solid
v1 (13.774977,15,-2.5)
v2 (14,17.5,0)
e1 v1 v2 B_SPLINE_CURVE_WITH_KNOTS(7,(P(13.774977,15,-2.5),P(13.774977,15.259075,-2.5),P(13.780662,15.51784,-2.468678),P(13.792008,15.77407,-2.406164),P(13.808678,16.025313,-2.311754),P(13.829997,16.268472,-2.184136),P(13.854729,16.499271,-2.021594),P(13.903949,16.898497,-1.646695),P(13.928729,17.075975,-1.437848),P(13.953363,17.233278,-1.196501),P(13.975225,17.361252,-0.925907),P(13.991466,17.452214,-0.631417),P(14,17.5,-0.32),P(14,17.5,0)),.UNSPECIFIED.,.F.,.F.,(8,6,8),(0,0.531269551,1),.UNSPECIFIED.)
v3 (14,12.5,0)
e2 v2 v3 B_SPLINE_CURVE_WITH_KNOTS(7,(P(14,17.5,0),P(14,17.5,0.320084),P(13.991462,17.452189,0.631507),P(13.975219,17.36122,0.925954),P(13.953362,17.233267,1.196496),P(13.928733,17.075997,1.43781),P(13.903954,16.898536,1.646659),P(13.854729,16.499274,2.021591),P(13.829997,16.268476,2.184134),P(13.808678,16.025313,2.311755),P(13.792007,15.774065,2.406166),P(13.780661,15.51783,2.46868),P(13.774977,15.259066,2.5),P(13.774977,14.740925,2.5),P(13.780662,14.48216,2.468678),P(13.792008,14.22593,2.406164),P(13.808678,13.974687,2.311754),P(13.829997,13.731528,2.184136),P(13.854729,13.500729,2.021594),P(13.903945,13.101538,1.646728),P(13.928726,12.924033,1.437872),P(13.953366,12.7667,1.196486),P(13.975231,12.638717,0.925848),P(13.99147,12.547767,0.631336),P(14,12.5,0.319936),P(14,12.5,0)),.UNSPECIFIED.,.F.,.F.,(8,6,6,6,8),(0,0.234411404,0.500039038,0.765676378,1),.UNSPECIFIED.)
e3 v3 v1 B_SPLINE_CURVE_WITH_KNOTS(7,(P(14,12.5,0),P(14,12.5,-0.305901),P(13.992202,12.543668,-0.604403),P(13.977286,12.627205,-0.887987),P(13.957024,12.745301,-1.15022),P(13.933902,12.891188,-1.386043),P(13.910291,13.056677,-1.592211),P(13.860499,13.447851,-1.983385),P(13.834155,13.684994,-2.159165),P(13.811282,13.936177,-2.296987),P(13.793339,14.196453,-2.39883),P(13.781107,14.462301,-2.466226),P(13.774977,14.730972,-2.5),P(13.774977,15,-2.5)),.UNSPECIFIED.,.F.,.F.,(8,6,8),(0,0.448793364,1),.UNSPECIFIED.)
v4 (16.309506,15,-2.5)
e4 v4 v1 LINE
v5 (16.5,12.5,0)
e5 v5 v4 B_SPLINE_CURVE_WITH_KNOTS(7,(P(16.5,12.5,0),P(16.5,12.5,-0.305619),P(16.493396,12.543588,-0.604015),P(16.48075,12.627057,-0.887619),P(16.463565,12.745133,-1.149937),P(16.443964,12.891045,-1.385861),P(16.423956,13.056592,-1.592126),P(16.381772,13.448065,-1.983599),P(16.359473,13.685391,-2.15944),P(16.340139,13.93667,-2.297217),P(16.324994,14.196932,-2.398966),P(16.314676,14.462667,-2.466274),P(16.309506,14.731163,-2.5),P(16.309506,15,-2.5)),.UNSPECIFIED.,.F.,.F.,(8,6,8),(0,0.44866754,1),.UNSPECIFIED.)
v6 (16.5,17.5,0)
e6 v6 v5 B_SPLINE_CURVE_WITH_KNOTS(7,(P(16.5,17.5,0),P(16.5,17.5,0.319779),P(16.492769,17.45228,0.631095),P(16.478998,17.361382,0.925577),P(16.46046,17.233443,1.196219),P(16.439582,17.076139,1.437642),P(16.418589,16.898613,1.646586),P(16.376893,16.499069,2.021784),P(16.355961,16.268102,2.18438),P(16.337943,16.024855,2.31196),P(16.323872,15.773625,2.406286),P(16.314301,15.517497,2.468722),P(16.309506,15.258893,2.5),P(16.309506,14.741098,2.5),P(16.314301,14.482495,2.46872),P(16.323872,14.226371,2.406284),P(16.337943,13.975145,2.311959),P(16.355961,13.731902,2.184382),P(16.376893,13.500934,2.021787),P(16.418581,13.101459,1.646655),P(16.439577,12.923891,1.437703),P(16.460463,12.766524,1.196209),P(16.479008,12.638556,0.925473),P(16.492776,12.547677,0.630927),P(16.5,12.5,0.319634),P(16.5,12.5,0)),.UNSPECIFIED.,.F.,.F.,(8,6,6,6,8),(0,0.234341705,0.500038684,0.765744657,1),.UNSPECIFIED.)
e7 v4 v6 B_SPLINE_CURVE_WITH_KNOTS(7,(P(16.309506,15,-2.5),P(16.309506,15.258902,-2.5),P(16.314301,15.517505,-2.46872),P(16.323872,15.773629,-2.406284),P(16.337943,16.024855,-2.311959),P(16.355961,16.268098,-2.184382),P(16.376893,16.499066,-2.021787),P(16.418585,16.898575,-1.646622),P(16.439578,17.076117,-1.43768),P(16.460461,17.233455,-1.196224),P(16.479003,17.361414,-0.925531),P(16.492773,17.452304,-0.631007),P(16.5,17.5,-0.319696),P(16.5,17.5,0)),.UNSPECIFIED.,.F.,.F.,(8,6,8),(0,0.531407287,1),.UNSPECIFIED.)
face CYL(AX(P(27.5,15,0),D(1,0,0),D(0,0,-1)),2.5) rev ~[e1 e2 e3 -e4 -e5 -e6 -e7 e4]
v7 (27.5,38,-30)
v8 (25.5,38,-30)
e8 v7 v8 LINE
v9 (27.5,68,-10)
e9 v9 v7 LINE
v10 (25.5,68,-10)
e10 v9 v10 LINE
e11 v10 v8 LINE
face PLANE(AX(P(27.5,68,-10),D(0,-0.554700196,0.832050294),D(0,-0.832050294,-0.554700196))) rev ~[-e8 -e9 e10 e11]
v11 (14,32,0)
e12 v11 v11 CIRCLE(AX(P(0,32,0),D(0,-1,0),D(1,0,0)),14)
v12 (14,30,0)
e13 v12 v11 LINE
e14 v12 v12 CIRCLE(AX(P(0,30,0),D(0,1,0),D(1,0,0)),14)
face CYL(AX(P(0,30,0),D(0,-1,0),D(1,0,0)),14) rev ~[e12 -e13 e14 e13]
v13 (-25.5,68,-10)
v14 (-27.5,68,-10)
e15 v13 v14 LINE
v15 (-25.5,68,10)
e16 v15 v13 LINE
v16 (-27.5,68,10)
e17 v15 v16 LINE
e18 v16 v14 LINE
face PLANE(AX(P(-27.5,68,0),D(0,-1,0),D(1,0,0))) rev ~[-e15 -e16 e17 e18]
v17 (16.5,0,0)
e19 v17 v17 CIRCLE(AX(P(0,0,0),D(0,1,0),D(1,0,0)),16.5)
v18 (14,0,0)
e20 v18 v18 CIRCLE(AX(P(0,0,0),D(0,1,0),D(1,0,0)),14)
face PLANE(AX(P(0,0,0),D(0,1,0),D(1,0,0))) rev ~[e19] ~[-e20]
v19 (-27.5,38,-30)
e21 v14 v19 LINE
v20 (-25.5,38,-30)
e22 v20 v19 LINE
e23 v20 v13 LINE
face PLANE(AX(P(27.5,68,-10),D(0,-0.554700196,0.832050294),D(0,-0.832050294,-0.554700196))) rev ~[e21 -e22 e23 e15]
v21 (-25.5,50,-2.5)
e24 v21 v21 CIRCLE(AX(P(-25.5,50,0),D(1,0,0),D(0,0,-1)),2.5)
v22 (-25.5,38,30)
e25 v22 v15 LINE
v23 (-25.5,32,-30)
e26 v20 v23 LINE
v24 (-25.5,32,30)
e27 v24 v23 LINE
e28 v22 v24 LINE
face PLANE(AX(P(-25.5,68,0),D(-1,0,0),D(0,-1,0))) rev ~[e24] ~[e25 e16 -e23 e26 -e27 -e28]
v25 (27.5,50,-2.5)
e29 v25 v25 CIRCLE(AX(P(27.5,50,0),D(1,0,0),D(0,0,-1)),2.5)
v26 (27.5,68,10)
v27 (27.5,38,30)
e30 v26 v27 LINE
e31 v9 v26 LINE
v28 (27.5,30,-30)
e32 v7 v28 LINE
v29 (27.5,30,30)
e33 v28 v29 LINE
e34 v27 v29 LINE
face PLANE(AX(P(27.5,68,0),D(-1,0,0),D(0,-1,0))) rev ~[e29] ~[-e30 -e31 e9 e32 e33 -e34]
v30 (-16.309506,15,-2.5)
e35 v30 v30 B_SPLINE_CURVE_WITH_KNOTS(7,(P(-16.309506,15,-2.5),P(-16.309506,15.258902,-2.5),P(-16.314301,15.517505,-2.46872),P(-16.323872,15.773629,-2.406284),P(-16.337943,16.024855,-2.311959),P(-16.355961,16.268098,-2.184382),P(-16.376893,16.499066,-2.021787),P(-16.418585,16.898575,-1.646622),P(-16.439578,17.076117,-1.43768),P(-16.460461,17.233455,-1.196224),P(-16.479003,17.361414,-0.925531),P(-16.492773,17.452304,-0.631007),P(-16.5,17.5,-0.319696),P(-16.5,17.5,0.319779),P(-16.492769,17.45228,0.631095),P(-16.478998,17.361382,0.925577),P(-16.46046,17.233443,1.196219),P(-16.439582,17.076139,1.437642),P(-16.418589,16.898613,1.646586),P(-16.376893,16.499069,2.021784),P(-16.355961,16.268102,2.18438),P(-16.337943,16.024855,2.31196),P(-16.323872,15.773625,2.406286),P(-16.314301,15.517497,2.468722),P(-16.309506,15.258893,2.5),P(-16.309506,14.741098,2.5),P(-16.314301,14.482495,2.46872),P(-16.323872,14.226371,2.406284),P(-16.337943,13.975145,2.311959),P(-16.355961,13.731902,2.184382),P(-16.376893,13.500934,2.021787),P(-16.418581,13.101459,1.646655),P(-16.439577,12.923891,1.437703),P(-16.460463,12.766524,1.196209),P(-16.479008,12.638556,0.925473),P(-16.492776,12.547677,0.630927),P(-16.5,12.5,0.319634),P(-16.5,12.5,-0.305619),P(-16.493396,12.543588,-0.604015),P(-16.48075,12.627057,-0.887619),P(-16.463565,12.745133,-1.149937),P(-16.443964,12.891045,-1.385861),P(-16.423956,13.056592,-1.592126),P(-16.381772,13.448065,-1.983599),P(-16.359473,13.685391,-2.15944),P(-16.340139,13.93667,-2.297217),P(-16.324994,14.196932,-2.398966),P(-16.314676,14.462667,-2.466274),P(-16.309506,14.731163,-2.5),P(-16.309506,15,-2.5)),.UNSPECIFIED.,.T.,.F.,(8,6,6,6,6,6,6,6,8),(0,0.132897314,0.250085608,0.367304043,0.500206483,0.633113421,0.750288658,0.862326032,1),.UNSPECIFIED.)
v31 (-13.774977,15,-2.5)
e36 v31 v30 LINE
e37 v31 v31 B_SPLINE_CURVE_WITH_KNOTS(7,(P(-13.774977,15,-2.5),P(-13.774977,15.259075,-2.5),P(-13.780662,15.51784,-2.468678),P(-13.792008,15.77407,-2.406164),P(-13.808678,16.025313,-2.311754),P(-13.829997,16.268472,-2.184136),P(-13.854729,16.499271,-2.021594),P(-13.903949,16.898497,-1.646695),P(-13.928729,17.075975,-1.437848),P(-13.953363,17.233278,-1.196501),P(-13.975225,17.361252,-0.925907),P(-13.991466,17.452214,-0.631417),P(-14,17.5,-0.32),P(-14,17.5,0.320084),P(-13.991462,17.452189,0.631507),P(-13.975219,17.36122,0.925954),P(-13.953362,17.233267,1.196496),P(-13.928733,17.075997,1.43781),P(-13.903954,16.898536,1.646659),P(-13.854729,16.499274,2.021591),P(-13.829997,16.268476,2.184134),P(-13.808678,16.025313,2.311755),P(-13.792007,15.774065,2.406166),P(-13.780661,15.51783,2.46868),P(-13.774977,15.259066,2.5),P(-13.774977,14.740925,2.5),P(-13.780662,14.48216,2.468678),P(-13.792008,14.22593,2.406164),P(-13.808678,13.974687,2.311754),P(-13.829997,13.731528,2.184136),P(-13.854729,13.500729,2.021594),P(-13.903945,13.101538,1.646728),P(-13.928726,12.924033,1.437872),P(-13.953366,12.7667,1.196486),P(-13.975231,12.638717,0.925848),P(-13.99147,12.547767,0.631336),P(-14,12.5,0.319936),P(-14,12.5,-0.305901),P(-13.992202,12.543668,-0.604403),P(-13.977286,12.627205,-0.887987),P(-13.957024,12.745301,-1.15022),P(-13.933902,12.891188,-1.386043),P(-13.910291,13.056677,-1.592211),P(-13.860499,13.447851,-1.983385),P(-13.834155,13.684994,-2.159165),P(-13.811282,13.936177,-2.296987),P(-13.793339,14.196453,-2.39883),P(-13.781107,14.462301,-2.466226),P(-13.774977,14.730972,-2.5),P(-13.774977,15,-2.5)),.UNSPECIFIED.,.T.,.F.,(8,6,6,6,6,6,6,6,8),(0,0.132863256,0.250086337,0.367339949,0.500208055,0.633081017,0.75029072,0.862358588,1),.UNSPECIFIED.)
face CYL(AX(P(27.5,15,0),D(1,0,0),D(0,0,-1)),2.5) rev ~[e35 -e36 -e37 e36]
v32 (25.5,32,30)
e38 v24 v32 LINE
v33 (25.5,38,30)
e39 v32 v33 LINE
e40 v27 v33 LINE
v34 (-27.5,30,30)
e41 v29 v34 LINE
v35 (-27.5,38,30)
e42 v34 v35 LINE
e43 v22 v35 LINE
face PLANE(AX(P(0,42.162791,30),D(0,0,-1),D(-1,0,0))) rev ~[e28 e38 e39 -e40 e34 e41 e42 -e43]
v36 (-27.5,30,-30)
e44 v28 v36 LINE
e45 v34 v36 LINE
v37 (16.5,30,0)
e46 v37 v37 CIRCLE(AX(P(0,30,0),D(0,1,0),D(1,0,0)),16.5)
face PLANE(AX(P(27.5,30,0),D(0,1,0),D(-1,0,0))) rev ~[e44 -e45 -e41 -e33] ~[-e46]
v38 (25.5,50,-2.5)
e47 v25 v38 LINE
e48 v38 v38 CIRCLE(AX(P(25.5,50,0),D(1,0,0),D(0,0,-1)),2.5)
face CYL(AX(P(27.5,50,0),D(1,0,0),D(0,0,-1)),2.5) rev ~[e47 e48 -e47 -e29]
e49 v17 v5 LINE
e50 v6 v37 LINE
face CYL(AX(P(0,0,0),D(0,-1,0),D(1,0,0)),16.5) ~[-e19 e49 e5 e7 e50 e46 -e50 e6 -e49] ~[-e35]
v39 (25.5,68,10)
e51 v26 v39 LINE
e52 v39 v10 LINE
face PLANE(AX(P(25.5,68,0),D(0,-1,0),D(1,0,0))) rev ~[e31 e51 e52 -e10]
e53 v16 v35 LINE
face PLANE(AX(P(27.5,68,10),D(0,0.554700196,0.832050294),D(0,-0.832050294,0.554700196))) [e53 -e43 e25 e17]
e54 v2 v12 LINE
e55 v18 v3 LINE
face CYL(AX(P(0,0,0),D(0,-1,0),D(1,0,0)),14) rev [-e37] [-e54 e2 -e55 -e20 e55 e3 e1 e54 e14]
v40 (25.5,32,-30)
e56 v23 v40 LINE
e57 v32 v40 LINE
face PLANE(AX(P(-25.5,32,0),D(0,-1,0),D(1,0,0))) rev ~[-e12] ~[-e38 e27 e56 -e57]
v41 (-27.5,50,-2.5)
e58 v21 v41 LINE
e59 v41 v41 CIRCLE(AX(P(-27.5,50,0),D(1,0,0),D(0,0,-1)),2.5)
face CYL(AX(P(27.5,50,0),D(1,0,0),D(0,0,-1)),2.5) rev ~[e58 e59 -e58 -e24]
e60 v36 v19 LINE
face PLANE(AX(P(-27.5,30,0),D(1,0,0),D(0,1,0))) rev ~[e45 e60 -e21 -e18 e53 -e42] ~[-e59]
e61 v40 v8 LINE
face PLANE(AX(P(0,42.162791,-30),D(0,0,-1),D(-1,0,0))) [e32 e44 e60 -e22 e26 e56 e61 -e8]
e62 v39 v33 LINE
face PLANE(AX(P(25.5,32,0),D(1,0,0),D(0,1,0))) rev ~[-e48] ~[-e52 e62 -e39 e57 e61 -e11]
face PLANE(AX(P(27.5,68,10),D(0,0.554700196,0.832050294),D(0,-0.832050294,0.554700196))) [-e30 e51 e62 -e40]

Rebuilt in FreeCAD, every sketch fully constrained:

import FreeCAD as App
import Part
import Sketcher

doc = App.newDocument("Part")
body = doc.addObject("PartDesign::Body", "Body")

# Sketch on XZ plane
sketch1 = body.newObject("Sketcher::SketchObject", "Sketch")
sketch1.AttachmentSupport = (doc.getObject("XZ_Plane"), [""])
sketch1.MapMode = "FlatFace"
sketch1.addGeometry([
    Part.Circle(App.Vector(0, 0, 0), App.Vector(0, 0, 1), 16),
    Part.Circle(App.Vector(0, 0, 0), App.Vector(0, 0, 1), 14),
], False)
sketch1.addConstraint([
    Sketcher.Constraint("Coincident", 0, 3, -1, 1),
    Sketcher.Constraint("Coincident", 1, 3, -1, 1),
    Sketcher.Constraint("Diameter", 0, 33.0),
    Sketcher.Constraint("Diameter", 1, 28.0),
])
pad1 = body.newObject("PartDesign::Pad", "Pad")
pad1.Profile = sketch1
pad1.Length = 30
pad1.Reversed = True

# Sketch on XY plane
sketch2 = body.newObject("Sketcher::SketchObject", "Sketch001")
sketch2.AttachmentSupport = (doc.getObject("XY_Plane"), [""])
sketch2.MapMode = "FlatFace"
sketch2.addGeometry([
    Part.LineSegment(App.Vector(-27.5, 30, 0), App.Vector(27.5, 30, 0)),  # 0
    Part.LineSegment(App.Vector(27.5, 30, 0), App.Vector(27.5, 68, 0)),  # 1
    Part.LineSegment(App.Vector(27.5, 68, 0), App.Vector(25.5, 68, 0)),  # 2
    Part.LineSegment(App.Vector(25.5, 68, 0), App.Vector(25.5, 32, 0)),  # 3
    Part.LineSegment(App.Vector(25.5, 32, 0), App.Vector(-25.5, 32, 0)),  # 4
    Part.LineSegment(App.Vector(-25.5, 32, 0), App.Vector(-25.5, 68, 0)),  # 5
    Part.LineSegment(App.Vector(-25.5, 68, 0), App.Vector(-27.5, 68, 0)),  # 6
    Part.LineSegment(App.Vector(-27.5, 68, 0), App.Vector(-27.5, 30, 0)),  # 7
], False)
sketch2.addConstraint([
    Sketcher.Constraint("Coincident", 0, 2, 1, 1),
    Sketcher.Constraint("Coincident", 1, 2, 2, 1),
    Sketcher.Constraint("Coincident", 2, 2, 3, 1),
    Sketcher.Constraint("Coincident", 3, 2, 4, 1),
    Sketcher.Constraint("Coincident", 4, 2, 5, 1),
    Sketcher.Constraint("Coincident", 5, 2, 6, 1),
    Sketcher.Constraint("Coincident", 6, 2, 7, 1),
    Sketcher.Constraint("Coincident", 7, 2, 0, 1),
    Sketcher.Constraint("Horizontal", 0),
    Sketcher.Constraint("Vertical", 1),
    Sketcher.Constraint("Horizontal", 2),
    Sketcher.Constraint("Vertical", 3),
    Sketcher.Constraint("Horizontal", 4),
    Sketcher.Constraint("Vertical", 5),
    Sketcher.Constraint("Horizontal", 6),
    Sketcher.Constraint("Vertical", 7),
    Sketcher.Constraint("Symmetric", 2, 2, 5, 2, -2),
    Sketcher.Constraint("Equal", 2, 6),
    Sketcher.Constraint("DistanceX", 0, 1, 0, 2, 55.0),
    Sketcher.Constraint("DistanceX", 2, 2, 2, 1, 2.0),
    Sketcher.Constraint("DistanceY", 1, 1, 1, 2, 38.0),
    Sketcher.Constraint("DistanceY", 3, 2, 3, 1, 36.0),
    Sketcher.Constraint("DistanceY", -1, 1, 0, 2, 30.0),
])
pad2 = body.newObject("PartDesign::Pad", "Pad001")
pad2.Profile = sketch2
pad2.Type = "TwoLengths"
pad2.Length = 30
pad2.Length2 = 30

# Sketch on XZ plane
sketch3 = body.newObject("Sketcher::SketchObject", "Sketch002")
sketch3.AttachmentSupport = (doc.getObject("XZ_Plane"), [""])
sketch3.MapMode = "FlatFace"
sketch3.AttachmentOffset = App.Placement(App.Vector(0, 0, -30), App.Rotation())
sketch3.addGeometry(Part.Circle(App.Vector(0, 0, 0), App.Vector(0, 0, 1), 14), False)
sketch3.addConstraint([
    Sketcher.Constraint("Coincident", 0, 3, -1, 1),
    Sketcher.Constraint("Diameter", 0, 28.0),
])
pocket1 = body.newObject("PartDesign::Pocket", "Pocket")
pocket1.Profile = sketch3
pocket1.Length = 50

# Sketch on YZ plane
sketch4 = body.newObject("Sketcher::SketchObject", "Sketch003")
sketch4.AttachmentSupport = (doc.getObject("YZ_Plane"), [""])
sketch4.MapMode = "FlatFace"
sketch4.AttachmentOffset = App.Placement(App.Vector(0, 0, 27.5), App.Rotation())
sketch4.addGeometry([
    Part.Circle(App.Vector(50, 0, 0), App.Vector(0, 0, 1), 2.5),  # 0
    Part.Circle(App.Vector(15, 0, 0), App.Vector(0, 0, 1), 2.5),  # 1
    Part.LineSegment(App.Vector(68, 30, 0), App.Vector(38, 30, 0)),  # 2
    Part.LineSegment(App.Vector(38, 30, 0), App.Vector(68, 10, 0)),  # 3
    Part.LineSegment(App.Vector(68, 10, 0), App.Vector(68, 30, 0)),  # 4
    Part.LineSegment(App.Vector(68, -30, 0), App.Vector(68, -10, 0)),  # 5
    Part.LineSegment(App.Vector(68, -10, 0), App.Vector(38, -30, 0)),  # 6
    Part.LineSegment(App.Vector(38, -30, 0), App.Vector(68, -30, 0)),  # 7
], False)
sketch4.addConstraint([
    Sketcher.Constraint("Coincident", 2, 2, 3, 1),
    Sketcher.Constraint("Coincident", 3, 2, 4, 1),
    Sketcher.Constraint("Coincident", 4, 2, 2, 1),
    Sketcher.Constraint("Coincident", 5, 2, 6, 1),
    Sketcher.Constraint("Coincident", 6, 2, 7, 1),
    Sketcher.Constraint("Coincident", 7, 2, 5, 1),
    Sketcher.Constraint("Horizontal", 2),
    Sketcher.Constraint("Vertical", 4),
    Sketcher.Constraint("Vertical", 5),
    Sketcher.Constraint("Horizontal", 7),
    Sketcher.Constraint("Equal", 0, 1),
    Sketcher.Constraint("Symmetric", 3, 2, 5, 2, -1),
    Sketcher.Constraint("Symmetric", 2, 2, 6, 2, -1),
    Sketcher.Constraint("PointOnObject", 0, 3, -1),
    Sketcher.Constraint("PointOnObject", 1, 3, -1),
    Sketcher.Constraint("Diameter", 0, 5.0),
    Sketcher.Constraint("DistanceX", 2, 2, 2, 1, 30.0),
    Sketcher.Constraint("DistanceY", 4, 1, 4, 2, 20.0),
    Sketcher.Constraint("DistanceX", -1, 1, 0, 3, 50.0),
    Sketcher.Constraint("DistanceX", -1, 1, 1, 3, 15.0),
    Sketcher.Constraint("DistanceX", -1, 1, 2, 2, 38.0),
    Sketcher.Constraint("DistanceY", -1, 1, 2, 2, 30.0),
])
pocket2 = body.newObject("PartDesign::Pocket", "Pocket001")
pocket2.Profile = sketch4
pocket2.Type = "ThroughAll"

doc.recompute()
